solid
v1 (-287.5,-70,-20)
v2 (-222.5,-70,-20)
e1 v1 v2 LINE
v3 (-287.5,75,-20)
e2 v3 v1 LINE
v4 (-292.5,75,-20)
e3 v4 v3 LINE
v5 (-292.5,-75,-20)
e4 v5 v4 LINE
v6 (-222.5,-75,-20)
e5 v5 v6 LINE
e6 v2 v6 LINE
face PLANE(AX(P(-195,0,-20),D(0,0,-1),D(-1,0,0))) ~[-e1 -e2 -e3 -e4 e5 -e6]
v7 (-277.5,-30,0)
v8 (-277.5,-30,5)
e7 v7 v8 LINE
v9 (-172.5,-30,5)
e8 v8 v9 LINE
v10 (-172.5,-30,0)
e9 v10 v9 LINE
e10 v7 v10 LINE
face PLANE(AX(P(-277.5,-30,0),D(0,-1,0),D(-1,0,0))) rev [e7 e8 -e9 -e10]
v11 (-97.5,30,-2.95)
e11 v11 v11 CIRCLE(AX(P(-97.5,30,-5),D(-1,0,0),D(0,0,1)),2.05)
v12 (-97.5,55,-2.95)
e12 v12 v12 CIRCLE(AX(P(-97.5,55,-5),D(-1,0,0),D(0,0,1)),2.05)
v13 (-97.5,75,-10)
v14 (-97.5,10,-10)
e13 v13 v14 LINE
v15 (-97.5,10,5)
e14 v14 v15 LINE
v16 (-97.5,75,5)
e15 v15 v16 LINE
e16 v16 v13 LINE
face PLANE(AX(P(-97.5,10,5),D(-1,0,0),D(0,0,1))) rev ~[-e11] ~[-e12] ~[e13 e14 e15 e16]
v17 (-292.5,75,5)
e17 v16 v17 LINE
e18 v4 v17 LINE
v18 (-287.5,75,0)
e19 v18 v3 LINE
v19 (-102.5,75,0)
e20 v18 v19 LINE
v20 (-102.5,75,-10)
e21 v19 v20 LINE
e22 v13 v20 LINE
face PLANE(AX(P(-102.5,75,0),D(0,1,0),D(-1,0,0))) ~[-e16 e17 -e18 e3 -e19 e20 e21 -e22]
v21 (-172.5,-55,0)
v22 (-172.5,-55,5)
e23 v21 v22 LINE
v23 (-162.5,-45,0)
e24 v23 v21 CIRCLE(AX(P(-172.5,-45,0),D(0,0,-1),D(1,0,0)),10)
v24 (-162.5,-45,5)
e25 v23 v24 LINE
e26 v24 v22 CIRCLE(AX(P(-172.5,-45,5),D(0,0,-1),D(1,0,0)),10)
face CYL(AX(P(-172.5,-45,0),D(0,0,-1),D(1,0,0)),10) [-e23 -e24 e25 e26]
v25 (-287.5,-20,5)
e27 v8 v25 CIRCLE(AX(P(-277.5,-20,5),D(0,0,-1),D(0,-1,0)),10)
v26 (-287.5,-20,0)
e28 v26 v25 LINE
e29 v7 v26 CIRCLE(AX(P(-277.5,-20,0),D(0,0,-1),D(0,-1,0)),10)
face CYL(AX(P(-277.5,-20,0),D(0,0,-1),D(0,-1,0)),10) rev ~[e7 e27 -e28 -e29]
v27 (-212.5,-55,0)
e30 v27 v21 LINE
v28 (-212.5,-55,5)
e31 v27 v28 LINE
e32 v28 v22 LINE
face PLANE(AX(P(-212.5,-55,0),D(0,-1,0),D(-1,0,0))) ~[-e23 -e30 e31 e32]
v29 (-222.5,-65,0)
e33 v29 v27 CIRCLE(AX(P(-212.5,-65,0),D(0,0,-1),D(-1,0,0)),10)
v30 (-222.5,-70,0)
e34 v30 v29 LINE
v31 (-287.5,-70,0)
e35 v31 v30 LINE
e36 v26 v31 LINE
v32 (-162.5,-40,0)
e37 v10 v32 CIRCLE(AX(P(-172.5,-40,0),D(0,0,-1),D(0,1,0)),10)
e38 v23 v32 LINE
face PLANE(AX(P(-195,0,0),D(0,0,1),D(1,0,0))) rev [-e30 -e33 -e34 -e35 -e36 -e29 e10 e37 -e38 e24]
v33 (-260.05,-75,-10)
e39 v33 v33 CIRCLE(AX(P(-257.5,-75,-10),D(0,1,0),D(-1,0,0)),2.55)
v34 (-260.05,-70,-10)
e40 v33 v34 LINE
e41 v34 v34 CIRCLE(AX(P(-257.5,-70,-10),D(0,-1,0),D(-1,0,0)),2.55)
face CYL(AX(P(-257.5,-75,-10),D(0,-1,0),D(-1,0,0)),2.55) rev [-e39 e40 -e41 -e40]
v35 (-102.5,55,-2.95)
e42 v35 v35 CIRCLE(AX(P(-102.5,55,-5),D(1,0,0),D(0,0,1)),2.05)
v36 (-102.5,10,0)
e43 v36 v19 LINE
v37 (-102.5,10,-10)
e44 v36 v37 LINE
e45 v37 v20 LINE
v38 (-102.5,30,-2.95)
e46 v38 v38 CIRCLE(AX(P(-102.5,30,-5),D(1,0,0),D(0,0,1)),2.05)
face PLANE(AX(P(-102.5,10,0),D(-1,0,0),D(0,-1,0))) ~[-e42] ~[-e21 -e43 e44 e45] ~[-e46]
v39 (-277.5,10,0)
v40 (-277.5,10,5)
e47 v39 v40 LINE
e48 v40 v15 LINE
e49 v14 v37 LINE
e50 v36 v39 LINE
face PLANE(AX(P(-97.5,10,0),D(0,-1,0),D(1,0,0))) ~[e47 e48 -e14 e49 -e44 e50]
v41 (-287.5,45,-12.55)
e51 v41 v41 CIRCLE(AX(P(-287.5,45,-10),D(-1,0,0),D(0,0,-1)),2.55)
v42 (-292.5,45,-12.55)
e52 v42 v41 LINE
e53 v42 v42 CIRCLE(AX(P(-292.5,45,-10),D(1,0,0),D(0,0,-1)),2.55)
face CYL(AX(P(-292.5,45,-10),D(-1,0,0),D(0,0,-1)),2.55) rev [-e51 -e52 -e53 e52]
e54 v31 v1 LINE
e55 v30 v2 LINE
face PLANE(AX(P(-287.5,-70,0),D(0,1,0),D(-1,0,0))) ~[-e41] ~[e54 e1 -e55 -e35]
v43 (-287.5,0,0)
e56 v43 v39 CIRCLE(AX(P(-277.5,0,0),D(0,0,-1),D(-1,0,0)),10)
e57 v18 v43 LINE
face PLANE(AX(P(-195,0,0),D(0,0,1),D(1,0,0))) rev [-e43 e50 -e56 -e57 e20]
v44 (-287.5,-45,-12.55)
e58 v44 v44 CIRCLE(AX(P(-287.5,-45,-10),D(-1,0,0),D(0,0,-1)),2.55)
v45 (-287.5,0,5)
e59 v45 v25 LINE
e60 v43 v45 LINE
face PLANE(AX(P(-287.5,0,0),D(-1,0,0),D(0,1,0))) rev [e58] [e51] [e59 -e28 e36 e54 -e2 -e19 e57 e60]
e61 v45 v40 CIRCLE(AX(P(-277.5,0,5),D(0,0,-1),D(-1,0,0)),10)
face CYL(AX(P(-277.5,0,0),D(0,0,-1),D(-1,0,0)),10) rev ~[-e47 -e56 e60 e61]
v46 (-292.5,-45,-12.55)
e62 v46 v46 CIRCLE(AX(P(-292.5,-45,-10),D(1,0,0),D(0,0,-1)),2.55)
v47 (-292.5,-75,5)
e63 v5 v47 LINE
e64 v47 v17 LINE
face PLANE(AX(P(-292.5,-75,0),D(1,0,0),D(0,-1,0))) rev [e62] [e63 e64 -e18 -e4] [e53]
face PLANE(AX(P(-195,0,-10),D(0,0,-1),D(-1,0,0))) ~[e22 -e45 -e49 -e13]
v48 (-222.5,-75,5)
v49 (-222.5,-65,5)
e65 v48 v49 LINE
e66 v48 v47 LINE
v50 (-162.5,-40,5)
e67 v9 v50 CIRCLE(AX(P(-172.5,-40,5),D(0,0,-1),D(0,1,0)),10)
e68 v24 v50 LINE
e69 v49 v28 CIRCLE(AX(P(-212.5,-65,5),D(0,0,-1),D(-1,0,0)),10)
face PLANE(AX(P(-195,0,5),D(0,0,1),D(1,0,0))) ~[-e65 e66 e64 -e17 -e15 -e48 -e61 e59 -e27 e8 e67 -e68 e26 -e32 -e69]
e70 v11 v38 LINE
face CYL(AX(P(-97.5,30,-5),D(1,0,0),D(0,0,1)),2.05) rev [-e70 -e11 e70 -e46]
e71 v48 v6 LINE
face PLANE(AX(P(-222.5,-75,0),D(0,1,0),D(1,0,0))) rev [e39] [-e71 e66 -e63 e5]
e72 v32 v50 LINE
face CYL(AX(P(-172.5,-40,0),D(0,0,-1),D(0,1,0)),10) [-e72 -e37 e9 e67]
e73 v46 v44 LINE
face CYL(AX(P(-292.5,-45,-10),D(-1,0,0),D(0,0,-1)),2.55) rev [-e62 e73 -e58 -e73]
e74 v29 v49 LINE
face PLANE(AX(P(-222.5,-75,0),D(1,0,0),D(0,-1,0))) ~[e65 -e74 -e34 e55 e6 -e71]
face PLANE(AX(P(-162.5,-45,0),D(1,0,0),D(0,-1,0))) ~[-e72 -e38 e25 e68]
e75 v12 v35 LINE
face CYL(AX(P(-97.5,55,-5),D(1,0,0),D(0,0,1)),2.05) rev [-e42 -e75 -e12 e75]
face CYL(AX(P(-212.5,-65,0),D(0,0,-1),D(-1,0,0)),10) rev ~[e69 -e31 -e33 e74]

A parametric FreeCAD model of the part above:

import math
import FreeCAD as App
import Part
import Sketcher
from FreeCAD import Vector
Q = App.Units.Quantity


def add_polygon(sketch, points):
    """Adds a closed chain of lines whose ends are joined by coincident constraints."""
    first, n = sketch.GeometryCount, len(points)
    for a, b in zip(points, points[1:] + points[:1]):
        sketch.addGeometry(Part.LineSegment(App.Vector(*a, 0), App.Vector(*b, 0)), False)
    for i in range(n):
        sketch.addConstraint(Sketcher.Constraint("Coincident", first + i, 2, first + (i + 1) % n, 1))

doc = App.newDocument("Part")
body = doc.addObject("PartDesign::Body", "Body")

# Sketch on XY plane
sketch1 = body.newObject("Sketcher::SketchObject", "Sketch")
sketch1.AttachmentSupport = (doc.getObject("XY_Plane"), [""])
sketch1.MapMode = "FlatFace"
sketch1.addGeometry(Part.LineSegment(Vector(27.5, -65, 0), Vector(27.5, -75, 0)), False)
sketch1.addGeometry(Part.LineSegment(Vector(27.5, -75, 0), Vector(97.5, -75, 0)), False)
sketch1.addGeometry(Part.LineSegment(Vector(97.5, -75, 0), Vector(97.5, 75, 0)), False)
sketch1.addGeometry(Part.LineSegment(Vector(97.5, 75, 0), Vector(-97.5, 75, 0)), False)
sketch1.addGeometry(Part.LineSegment(Vector(-97.5, 75, 0), Vector(-97.5, 10, 0)), False)
sketch1.addGeometry(Part.LineSegment(Vector(-97.5, 10, 0), Vector(82.5, 10, 0)), False)
sketch1.addGeometry(Part.ArcOfCircle(Part.Circle(Vector(82.5, 0, 0), Vector(0, 0, 1), 10), math.radians(0), math.radians(90)), False)
sketch1.addGeometry(Part.LineSegment(Vector(92.5, 0, 0), Vector(92.5, -20, 0)), False)
sketch1.addGeometry(Part.ArcOfCircle(Part.Circle(Vector(82.5, -20, 0), Vector(0, 0, 1), 10), math.radians(-90), math.radians(0)), False)
sketch1.addGeometry(Part.LineSegment(Vector(82.5, -30, 0), Vector(-22.5, -30, 0)), False)
sketch1.addGeometry(Part.ArcOfCircle(Part.Circle(Vector(-22.5, -40, 0), Vector(0, 0, 1), 10), math.radians(90), math.radians(180)), False)
sketch1.addGeometry(Part.LineSegment(Vector(-32.5, -40, 0), Vector(-32.5, -45, 0)), False)
sketch1.addGeometry(Part.ArcOfCircle(Part.Circle(Vector(-22.5, -45, 0), Vector(0, 0, 1), 10), math.radians(180), math.radians(270)), False)
sketch1.addGeometry(Part.LineSegment(Vector(-22.5, -55, 0), Vector(17.5, -55, 0)), False)
sketch1.addGeometry(Part.ArcOfCircle(Part.Circle(Vector(17.5, -65, 0), Vector(0, 0, 1), 10), math.radians(0), math.radians(90)), False)
sketch1.addConstraint(Sketcher.Constraint("Coincident", 0, 2, 1, 1))
sketch1.addConstraint(Sketcher.Constraint("Coincident", 1, 2, 2, 1))
sketch1.addConstraint(Sketcher.Constraint("Coincident", 2, 2, 3, 1))
sketch1.addConstraint(Sketcher.Constraint("Coincident", 3, 2, 4, 1))
sketch1.addConstraint(Sketcher.Constraint("Coincident", 4, 2, 5, 1))
sketch1.addConstraint(Sketcher.Constraint("Tangent", 5, 2, 6, 2))
sketch1.addConstraint(Sketcher.Constraint("Tangent", 6, 1, 7, 1))
sketch1.addConstraint(Sketcher.Constraint("Tangent", 7, 2, 8, 2))
sketch1.addConstraint(Sketcher.Constraint("Tangent", 8, 1, 9, 1))
sketch1.addConstraint(Sketcher.Constraint("Tangent", 9, 2, 10, 1))
sketch1.addConstraint(Sketcher.Constraint("Tangent", 10, 2, 11, 1))
sketch1.addConstraint(Sketcher.Constraint("Tangent", 11, 2, 12, 1))
sketch1.addConstraint(Sketcher.Constraint("Tangent", 12, 2, 13, 1))
sketch1.addConstraint(Sketcher.Constraint("Tangent", 13, 2, 14, 2))
sketch1.addConstraint(Sketcher.Constraint("Tangent", 14, 1, 0, 1))
sketch1.addConstraint(Sketcher.Constraint("Vertical", 0))
sketch1.addConstraint(Sketcher.Constraint("Horizontal", 1))
sketch1.addConstraint(Sketcher.Constraint("Vertical", 2))
sketch1.addConstraint(Sketcher.Constraint("Horizontal", 3))
sketch1.addConstraint(Sketcher.Constraint("Vertical", 4))
sketch1.addConstraint(Sketcher.Constraint("Horizontal", 5))
sketch1.addConstraint(Sketcher.Constraint("Vertical", 7))
sketch1.addConstraint(Sketcher.Constraint("Horizontal", 9))
sketch1.addConstraint(Sketcher.Constraint("Vertical", 11))
sketch1.addConstraint(Sketcher.Constraint("Horizontal", 13))
sketch1.addConstraint(Sketcher.Constraint("Equal", 6, 8))
sketch1.addConstraint(Sketcher.Constraint("Equal", 8, 10))
sketch1.addConstraint(Sketcher.Constraint("Equal", 10, 12))
sketch1.addConstraint(Sketcher.Constraint("Equal", 12, 14))
sketch1.addConstraint(Sketcher.Constraint("Symmetric", 1, 2, 3, 2, -1, 1))
sketch1.addConstraint(Sketcher.Constraint("PointOnObject", 6, 3, -1))
sketch1.addConstraint(Sketcher.Constraint("Radius", 6, Q("10 mm")))
sketch1.addConstraint(Sketcher.Constraint("DistanceX", 3, 2, 3, 1, Q("195 mm")))
sketch1.addConstraint(Sketcher.Constraint("DistanceX", 13, 1, 13, 2, Q("40 mm")))
sketch1.addConstraint(Sketcher.Constraint("DistanceY", 0, 2, 0, 1, Q("10 mm")))
sketch1.addConstraint(Sketcher.Constraint("DistanceY", 2, 1, 2, 2, Q("150 mm")))
sketch1.addConstraint(Sketcher.Constraint("DistanceY", 7, 2, 7, 1, Q("20 mm")))
sketch1.addConstraint(Sketcher.Constraint("DistanceX", 14, 3, 8, 3, Q("65 mm")))
sketch1.addConstraint(Sketcher.Constraint("DistanceX", 4, 2, 0, 2, Q("125 mm")))
pad1 = body.newObject("PartDesign::Pad", "Pad")
pad1.Profile = sketch1
pad1.Length = 5

# Sketch on XY plane
sketch2 = body.newObject("Sketcher::SketchObject", "Sketch001")
sketch2.AttachmentSupport = (doc.getObject("XY_Plane"), [""])
sketch2.MapMode = "FlatFace"
add_polygon(sketch2, [(-97.5, 75), (-92.5, 75), (-92.5, 10), (-97.5, 10)])  # lines 0-3
sketch2.addConstraint(Sketcher.Constraint("Horizontal", 0))
sketch2.addConstraint(Sketcher.Constraint("Vertical", 1))
sketch2.addConstraint(Sketcher.Constraint("Horizontal", 2))
sketch2.addConstraint(Sketcher.Constraint("Vertical", 3))
sketch2.addConstraint(Sketcher.Constraint("DistanceX", 0, 1, 0, 2, Q("5 mm")))
sketch2.addConstraint(Sketcher.Constraint("DistanceY", 1, 2, 1, 1, Q("65 mm")))
sketch2.addConstraint(Sketcher.Constraint("DistanceY", -1, 1, 0, 2, Q("75 mm")))
sketch2.addConstraint(Sketcher.Constraint("DistanceX", 0, 2, -1, 1, Q("92.5 mm")))
pad2 = body.newObject("PartDesign::Pad", "Pad001")
pad2.Profile = sketch2
pad2.Length = 10
pad2.Reversed = True

# Sketch on XY plane
sketch3 = body.newObject("Sketcher::SketchObject", "Sketch002")
sketch3.AttachmentSupport = (doc.getObject("XY_Plane"), [""])
sketch3.MapMode = "FlatFace"
add_polygon(sketch3, [(92.5, 75), (97.5, 75), (97.5, -75), (27.5, -75), (27.5, -70), (92.5, -70)])  # lines 0-5
sketch3.addConstraint(Sketcher.Constraint("Horizontal", 0))
sketch3.addConstraint(Sketcher.Constraint("Vertical", 1))
sketch3.addConstraint(Sketcher.Constraint("Horizontal", 2))
sketch3.addConstraint(Sketcher.Constraint("Vertical", 3))
sketch3.addConstraint(Sketcher.Constraint("Horizontal", 4))
sketch3.addConstraint(Sketcher.Constraint("Vertical", 5))
sketch3.addConstraint(Sketcher.Constraint("Equal", 0, 3))
sketch3.addConstraint(Sketcher.Constraint("DistanceX", 0, 1, 0, 2, Q("5 mm")))
sketch3.addConstraint(Sketcher.Constraint("DistanceX", 2, 2, 2, 1, Q("70 mm")))
sketch3.addConstraint(Sketcher.Constraint("DistanceY", 1, 2, 1, 1, Q("150 mm")))
sketch3.addConstraint(Sketcher.Constraint("DistanceY", -1, 1, 0, 2, Q("75 mm")))
sketch3.addConstraint(Sketcher.Constraint("DistanceX", -1, 1, 0, 2, Q("97.5 mm")))
pad3 = body.newObject("PartDesign::Pad", "Pad002")
pad3.Profile = sketch3
pad3.Length = 20
pad3.Reversed = True

# Sketch on YZ plane
sketch4 = body.newObject("Sketcher::SketchObject", "Sketch003")
sketch4.AttachmentSupport = (doc.getObject("YZ_Plane"), [""])
sketch4.MapMode = "FlatFace"
sketch4.AttachmentOffset = App.Placement(Vector(0, 0, 97.5), App.Rotation())
sketch4.addGeometry(Part.Circle(Vector(-45, -10, 0), Vector(0, 0, 1), 2.55), False)
sketch4.addGeometry(Part.Circle(Vector(45, -10, 0), Vector(0, 0, 1), 2.55), False)
sketch4.addConstraint(Sketcher.Constraint("Equal", 0, 1))
sketch4.addConstraint(Sketcher.Constraint("Symmetric", 0, 3, 1, 3, -2))
sketch4.addConstraint(Sketcher.Constraint("Diameter", 0, Q("5.1 mm")))
sketch4.addConstraint(Sketcher.Constraint("DistanceX", 0, 3, 1, 3, Q("90 mm")))
sketch4.addConstraint(Sketcher.Constraint("DistanceY", 0, 3, -1, 1, Q("10 mm")))
pocket1 = body.newObject("PartDesign::Pocket", "Pocket")
pocket1.Profile = sketch4
pocket1.Length = 20

# Sketch on XZ plane
sketch5 = body.newObject("Sketcher::SketchObject", "Sketch004")
sketch5.AttachmentSupport = (doc.getObject("XZ_Plane"), [""])
sketch5.MapMode = "FlatFace"
sketch5.AttachmentOffset = App.Placement(Vector(0, 0, 75), App.Rotation())
sketch5.addGeometry(Part.Circle(Vector(62.5, -10, 0), Vector(0, 0, 1), 2.55), False)
sketch5.addConstraint(Sketcher.Constraint("Diameter", 0, Q("5.1 mm")))
sketch5.addConstraint(Sketcher.Constraint("DistanceY", 0, 3, -1, 1, Q("10 mm")))
sketch5.addConstraint(Sketcher.Constraint("DistanceX", -1, 1, 0, 3, Q("62.5 mm")))
pocket2 = body.newObject("PartDesign::Pocket", "Pocket001")
pocket2.Profile = sketch5
pocket2.Length = 20

# Sketch on YZ plane
sketch6 = body.newObject("Sketcher::SketchObject", "Sketch005")
sketch6.AttachmentSupport = (doc.getObject("YZ_Plane"), [""])
sketch6.MapMode = "FlatFace"
sketch6.AttachmentOffset = App.Placement(Vector(0, 0, -97.5), App.Rotation())
sketch6.addGeometry(Part.Circle(Vector(55, -5, 0), Vector(0, 0, 1), 2.05), False)
sketch6.addGeometry(Part.Circle(Vector(30, -5, 0), Vector(0, 0, 1), 2.05), False)
sketch6.addConstraint(Sketcher.Constraint("Equal", 0, 1))
sketch6.addConstraint(Sketcher.Constraint("Horizontal", 0, 3, 1, 3))
sketch6.addConstraint(Sketcher.Constraint("Diameter", 0, Q("4.1 mm")))
sketch6.addConstraint(Sketcher.Constraint("DistanceY", 0, 3, -1, 1, Q("5 mm")))
sketch6.addConstraint(Sketcher.Constraint("DistanceX", -1, 1, 0, 3, Q("55 mm")))
sketch6.addConstraint(Sketcher.Constraint("DistanceX", -1, 1, 1, 3, Q("30 mm")))
pocket3 = body.newObject("PartDesign::Pocket", "Pocket002")
pocket3.Profile = sketch6
pocket3.Length = 20
pocket3.Reversed = True
doc.recompute()

datumplane = body.newObject("PartDesign::Plane", "DatumPlane")
datumplane.AttachmentSupport = (doc.getObject("YZ_Plane"), [""])
datumplane.MapMode = "FlatFace"
datumplane.AttachmentOffset = App.Placement(Vector(0, 0, -97.5), App.Rotation())
mirrored = body.newObject("PartDesign::Mirrored", "Mirrored")
mirrored.Originals = [pad1, pad2, pad3, pocket1, pocket2, pocket3]
mirrored.MirrorPlane = (datumplane, [""])
body.Tip = mirrored

# Sketch on YZ plane
sketch7 = body.newObject("Sketcher::SketchObject", "Sketch006")
sketch7.AttachmentSupport = (doc.getObject("YZ_Plane"), [""])
sketch7.MapMode = "FlatFace"
sketch7.AttachmentOffset = App.Placement(Vector(0, 0, -97.5), App.Rotation())
add_polygon(sketch7, [(109.2093, -73.6811), (-135.6445, -73.6811), (-135.6445, 48.9333), (109.2093, 48.9333)])  # lines 0-3
sketch7.addConstraint(Sketcher.Constraint("Horizontal", 0))
sketch7.addConstraint(Sketcher.Constraint("Vertical", 1))
sketch7.addConstraint(Sketcher.Constraint("Horizontal", 2))
sketch7.addConstraint(Sketcher.Constraint("Vertical", 3))
sketch7.addConstraint(Sketcher.Constraint("DistanceX", 0, 2, 0, 1, Q("244.8538 mm")))
sketch7.addConstraint(Sketcher.Constraint("DistanceY", 1, 1, 1, 2, Q("122.6144 mm")))
sketch7.addConstraint(Sketcher.Constraint("DistanceY", 0, 2, -1, 1, Q("73.681 mm")))
sketch7.addConstraint(Sketcher.Constraint("DistanceX", 0, 2, -1, 1, Q("135.6445 mm")))
pocket4 = body.newObject("PartDesign::Pocket", "Pocket003")
pocket4.Profile = sketch7
pocket4.Length = 213.8375
pocket4.Reversed = True

doc.recompute()
